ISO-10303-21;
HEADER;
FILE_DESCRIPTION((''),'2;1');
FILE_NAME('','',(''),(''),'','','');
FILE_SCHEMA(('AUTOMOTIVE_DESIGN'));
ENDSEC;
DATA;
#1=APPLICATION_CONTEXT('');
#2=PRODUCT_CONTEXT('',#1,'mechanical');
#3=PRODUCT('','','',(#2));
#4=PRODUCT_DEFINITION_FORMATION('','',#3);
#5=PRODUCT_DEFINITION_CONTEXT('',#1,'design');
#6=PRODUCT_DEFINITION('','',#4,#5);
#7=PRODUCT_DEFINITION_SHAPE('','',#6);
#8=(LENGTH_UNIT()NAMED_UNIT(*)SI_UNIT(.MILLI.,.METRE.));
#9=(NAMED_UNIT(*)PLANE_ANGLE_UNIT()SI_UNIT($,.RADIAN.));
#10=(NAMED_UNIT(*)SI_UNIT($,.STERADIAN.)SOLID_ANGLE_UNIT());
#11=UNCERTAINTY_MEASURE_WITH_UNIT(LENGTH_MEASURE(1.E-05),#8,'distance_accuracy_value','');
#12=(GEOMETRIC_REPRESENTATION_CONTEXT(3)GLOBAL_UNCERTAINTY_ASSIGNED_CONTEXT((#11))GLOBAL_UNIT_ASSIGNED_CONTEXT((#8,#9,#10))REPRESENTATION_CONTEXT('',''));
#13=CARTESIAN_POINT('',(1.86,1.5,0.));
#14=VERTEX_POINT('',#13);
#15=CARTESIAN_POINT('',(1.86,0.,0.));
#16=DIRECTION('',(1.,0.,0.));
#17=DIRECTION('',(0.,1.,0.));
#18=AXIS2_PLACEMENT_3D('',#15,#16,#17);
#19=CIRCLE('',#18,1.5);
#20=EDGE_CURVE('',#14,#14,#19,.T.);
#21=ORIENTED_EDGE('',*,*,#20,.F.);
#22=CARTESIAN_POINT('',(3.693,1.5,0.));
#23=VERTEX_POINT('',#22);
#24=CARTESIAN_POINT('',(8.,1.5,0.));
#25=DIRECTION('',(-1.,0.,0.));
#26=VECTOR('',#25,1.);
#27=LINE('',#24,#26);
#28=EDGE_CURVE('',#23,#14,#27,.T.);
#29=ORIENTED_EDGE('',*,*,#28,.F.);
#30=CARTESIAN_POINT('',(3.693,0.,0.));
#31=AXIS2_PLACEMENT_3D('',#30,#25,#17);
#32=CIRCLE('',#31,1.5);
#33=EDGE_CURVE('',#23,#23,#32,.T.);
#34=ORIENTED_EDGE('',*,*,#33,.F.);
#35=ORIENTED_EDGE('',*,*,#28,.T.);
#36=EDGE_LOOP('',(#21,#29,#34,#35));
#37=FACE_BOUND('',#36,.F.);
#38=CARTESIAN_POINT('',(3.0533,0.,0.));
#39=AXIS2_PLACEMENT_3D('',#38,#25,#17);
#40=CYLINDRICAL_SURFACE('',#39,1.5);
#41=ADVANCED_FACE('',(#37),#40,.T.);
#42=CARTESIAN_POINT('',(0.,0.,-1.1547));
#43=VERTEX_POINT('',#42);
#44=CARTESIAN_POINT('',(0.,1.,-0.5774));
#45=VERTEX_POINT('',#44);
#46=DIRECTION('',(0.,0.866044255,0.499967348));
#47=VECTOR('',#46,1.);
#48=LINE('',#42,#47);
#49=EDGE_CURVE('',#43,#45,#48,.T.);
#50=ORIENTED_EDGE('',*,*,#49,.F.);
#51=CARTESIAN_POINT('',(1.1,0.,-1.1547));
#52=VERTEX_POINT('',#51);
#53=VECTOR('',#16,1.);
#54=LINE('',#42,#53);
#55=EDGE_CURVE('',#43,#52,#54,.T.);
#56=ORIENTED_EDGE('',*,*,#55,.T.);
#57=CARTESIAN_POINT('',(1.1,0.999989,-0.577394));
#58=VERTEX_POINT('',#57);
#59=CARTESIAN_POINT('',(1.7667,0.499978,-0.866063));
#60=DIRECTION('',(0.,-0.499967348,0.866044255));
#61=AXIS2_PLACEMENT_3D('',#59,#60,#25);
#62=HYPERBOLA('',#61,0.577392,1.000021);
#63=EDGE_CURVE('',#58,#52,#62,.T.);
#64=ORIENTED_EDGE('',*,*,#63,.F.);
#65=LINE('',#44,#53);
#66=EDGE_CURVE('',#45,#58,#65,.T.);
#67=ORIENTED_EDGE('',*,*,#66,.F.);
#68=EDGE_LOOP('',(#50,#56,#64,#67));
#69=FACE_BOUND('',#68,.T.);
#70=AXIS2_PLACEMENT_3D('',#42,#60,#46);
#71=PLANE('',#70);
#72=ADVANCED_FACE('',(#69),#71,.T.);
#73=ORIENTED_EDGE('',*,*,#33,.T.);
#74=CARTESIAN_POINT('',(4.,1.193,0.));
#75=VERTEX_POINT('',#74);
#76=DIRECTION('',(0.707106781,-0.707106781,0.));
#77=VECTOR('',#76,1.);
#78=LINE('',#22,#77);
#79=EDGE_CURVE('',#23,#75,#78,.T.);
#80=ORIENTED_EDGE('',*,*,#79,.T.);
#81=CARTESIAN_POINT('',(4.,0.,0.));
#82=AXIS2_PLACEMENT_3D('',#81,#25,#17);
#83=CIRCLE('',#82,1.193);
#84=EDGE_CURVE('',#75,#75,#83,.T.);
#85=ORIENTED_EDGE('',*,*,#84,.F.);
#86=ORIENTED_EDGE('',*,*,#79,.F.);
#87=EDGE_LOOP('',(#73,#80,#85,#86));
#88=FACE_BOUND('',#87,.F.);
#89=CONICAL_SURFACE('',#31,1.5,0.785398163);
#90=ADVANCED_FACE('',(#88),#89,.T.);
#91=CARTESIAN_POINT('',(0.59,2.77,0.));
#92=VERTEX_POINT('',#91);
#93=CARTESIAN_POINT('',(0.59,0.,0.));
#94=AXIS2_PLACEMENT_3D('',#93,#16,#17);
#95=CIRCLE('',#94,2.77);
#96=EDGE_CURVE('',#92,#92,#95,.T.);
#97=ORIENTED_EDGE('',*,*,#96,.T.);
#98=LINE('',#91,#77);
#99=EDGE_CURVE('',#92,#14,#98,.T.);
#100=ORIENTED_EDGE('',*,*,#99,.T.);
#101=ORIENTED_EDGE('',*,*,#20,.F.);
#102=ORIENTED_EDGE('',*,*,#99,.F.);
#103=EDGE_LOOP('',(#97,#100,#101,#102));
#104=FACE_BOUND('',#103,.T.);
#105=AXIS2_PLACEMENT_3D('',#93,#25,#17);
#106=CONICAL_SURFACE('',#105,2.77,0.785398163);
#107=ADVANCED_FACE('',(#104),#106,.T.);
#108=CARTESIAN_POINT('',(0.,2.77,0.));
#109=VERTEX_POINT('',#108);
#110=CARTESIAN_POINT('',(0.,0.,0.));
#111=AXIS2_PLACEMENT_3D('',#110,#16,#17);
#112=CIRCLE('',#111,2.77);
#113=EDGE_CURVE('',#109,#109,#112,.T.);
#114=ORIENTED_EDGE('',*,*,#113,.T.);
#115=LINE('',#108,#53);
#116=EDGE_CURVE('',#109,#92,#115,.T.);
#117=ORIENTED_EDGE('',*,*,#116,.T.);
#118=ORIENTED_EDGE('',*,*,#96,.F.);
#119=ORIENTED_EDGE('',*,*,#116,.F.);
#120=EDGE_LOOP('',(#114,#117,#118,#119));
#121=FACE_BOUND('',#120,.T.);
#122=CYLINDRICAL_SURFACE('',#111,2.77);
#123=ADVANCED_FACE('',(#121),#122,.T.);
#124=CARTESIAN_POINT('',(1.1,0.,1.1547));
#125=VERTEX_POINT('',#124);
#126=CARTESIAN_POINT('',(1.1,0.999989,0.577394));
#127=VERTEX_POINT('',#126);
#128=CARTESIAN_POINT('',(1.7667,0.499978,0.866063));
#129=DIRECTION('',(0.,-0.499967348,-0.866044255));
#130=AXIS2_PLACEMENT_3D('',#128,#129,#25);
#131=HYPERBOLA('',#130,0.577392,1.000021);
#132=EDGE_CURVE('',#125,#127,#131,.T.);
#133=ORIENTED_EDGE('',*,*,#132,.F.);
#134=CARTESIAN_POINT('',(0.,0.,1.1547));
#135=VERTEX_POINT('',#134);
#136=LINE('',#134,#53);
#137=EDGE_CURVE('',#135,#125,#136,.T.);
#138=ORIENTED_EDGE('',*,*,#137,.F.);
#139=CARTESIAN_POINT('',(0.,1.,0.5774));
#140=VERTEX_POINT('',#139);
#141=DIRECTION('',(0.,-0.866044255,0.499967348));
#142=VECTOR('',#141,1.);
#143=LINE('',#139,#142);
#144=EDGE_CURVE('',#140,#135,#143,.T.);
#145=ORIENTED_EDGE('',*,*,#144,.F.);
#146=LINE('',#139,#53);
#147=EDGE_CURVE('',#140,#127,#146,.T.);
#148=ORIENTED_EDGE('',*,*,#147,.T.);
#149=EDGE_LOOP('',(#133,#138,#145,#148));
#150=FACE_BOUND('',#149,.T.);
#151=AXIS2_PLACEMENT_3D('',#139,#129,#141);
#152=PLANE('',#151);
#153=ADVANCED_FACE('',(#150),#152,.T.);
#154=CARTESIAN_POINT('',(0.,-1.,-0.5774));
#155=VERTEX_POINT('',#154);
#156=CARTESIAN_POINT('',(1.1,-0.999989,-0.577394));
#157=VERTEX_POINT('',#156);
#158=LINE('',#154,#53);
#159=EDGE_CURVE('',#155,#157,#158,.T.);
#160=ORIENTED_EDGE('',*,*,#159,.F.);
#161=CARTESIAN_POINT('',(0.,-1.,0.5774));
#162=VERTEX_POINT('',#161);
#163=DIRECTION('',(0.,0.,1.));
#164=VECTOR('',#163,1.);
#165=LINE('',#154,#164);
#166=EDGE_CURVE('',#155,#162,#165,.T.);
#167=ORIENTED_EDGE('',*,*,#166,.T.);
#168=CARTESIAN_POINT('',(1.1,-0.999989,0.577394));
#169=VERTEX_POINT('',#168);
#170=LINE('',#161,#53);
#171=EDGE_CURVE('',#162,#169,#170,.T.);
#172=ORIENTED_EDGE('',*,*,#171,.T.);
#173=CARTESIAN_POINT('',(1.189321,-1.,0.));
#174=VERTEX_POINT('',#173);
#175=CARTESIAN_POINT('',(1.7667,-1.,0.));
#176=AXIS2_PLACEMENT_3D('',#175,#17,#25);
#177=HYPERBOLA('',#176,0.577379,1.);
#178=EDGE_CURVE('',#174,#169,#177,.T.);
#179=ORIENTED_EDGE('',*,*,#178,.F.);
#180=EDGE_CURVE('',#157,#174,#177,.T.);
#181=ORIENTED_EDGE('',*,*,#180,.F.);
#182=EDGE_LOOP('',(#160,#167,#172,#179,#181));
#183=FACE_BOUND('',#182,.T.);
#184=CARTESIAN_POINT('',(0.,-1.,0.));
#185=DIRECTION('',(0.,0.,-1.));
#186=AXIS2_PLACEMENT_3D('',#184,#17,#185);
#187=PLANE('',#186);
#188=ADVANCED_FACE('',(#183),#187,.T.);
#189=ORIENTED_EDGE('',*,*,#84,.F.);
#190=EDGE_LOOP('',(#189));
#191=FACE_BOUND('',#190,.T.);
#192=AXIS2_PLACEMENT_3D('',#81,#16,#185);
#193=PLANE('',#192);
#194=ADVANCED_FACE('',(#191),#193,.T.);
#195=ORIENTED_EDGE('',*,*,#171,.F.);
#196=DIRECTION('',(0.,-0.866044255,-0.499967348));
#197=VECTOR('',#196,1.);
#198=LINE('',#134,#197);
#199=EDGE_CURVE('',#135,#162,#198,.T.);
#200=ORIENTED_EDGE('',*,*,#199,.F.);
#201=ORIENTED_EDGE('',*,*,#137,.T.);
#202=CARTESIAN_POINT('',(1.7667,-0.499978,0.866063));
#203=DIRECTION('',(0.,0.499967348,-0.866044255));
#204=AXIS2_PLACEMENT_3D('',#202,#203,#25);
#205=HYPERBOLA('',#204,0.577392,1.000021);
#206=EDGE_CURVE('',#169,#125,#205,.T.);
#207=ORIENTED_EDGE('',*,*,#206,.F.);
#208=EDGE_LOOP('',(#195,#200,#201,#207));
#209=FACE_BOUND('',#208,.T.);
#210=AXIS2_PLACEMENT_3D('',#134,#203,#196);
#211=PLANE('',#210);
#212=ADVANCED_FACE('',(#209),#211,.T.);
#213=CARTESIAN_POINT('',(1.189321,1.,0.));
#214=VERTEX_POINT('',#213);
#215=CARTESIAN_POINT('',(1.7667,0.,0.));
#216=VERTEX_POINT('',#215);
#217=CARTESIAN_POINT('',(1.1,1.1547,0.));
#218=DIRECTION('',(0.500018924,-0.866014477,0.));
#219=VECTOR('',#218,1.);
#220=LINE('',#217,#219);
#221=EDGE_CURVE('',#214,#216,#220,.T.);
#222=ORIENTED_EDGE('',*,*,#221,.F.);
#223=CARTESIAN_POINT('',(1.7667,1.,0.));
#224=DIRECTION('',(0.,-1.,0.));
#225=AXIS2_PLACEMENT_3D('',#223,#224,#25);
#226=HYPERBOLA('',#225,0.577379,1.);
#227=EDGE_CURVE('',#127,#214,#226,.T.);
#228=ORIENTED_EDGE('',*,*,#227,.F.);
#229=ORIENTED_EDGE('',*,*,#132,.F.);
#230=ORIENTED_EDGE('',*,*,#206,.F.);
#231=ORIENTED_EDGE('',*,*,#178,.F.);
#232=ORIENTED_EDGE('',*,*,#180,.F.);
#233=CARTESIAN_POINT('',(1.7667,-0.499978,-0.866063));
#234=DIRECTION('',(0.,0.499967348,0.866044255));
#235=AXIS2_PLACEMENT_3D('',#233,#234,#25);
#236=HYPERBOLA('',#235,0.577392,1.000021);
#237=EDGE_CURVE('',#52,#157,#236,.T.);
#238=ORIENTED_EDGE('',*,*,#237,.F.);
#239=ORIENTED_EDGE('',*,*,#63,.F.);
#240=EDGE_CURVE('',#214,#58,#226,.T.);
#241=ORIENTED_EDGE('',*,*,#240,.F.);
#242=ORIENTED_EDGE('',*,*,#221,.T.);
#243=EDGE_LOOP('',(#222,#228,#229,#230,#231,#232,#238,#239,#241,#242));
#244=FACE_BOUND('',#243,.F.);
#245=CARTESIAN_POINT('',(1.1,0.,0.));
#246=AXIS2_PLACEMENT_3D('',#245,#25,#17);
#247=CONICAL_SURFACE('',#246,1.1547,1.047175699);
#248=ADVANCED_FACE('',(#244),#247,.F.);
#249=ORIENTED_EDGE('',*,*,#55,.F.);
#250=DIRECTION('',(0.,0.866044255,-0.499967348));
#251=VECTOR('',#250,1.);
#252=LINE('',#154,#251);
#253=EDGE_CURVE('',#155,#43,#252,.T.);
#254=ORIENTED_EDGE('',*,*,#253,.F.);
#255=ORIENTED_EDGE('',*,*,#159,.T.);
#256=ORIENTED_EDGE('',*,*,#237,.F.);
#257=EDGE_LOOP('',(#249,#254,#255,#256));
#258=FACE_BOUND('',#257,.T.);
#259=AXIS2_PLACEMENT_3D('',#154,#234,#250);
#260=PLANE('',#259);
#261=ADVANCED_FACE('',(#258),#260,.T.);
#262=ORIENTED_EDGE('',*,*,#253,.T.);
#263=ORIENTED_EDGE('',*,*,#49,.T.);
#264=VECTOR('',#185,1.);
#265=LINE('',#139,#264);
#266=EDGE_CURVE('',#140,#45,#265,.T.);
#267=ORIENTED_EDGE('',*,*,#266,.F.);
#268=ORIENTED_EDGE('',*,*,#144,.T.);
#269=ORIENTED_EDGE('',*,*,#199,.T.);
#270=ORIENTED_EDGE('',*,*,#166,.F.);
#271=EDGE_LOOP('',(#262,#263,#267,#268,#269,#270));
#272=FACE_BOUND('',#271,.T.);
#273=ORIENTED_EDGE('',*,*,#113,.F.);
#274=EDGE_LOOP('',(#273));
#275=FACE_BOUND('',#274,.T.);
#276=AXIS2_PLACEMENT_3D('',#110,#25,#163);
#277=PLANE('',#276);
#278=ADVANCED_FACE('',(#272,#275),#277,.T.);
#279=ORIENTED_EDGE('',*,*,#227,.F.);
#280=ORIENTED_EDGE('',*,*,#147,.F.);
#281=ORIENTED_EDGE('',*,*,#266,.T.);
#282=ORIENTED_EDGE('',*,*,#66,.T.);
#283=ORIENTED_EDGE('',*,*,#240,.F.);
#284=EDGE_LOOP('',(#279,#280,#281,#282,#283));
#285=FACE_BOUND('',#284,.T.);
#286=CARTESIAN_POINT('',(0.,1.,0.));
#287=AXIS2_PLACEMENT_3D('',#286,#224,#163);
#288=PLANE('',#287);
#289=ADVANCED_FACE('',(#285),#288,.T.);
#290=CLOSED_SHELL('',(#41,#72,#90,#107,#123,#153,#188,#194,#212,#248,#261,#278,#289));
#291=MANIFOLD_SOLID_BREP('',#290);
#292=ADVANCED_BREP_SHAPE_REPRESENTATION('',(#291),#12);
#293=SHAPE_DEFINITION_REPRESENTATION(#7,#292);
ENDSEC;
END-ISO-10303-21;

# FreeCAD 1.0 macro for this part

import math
import FreeCAD as App
import Part
import Sketcher
Q = App.Units.Quantity


def edges_at(feature, points):
    """Names of the edges that pass closest to the given points."""
    edges = feature.Shape.Edges
    near = lambda p: min(range(len(edges)), key=lambda i: edges[i].distToShape(Part.Vertex(*p))[0])
    return sorted({f"Edge{near(p) + 1}" for p in points})

doc = App.newDocument("Part")
body = doc.addObject("PartDesign::Body", "Body")

# Sketch on XY plane
sketch1 = body.newObject("Sketcher::SketchObject", "Sketch")
sketch1.AttachmentSupport = (doc.getObject("XY_Plane"), [""])
sketch1.MapMode = "FlatFace"
sketch1.addGeometry([
    Part.LineSegment(App.Vector(1.8, 0, 0), App.Vector(8, 0, 0)),  # 0
    Part.LineSegment(App.Vector(8, 0, 0), App.Vector(8, 1.5, 0)),  # 1
    Part.LineSegment(App.Vector(8, 1.5, 0), App.Vector(1.9, 1.5, 0)),  # 2
    Part.LineSegment(App.Vector(1.9, 1.5, 0), App.Vector(0.6, 2.8, 0)),  # 3
    Part.LineSegment(App.Vector(0.6, 2.8, 0), App.Vector(0, 2.8, 0)),  # 4
    Part.LineSegment(App.Vector(0, 2.8, 0), App.Vector(0, 1.2, 0)),  # 5
    Part.LineSegment(App.Vector(0, 1.2, 0), App.Vector(1.1, 1.2, 0)),  # 6
    Part.LineSegment(App.Vector(1.1, 1.2, 0), App.Vector(1.8, 0, 0)),  # 7
], False)
sketch1.addConstraint([
    Sketcher.Constraint("Coincident", 0, 2, 1, 1),
    Sketcher.Constraint("Coincident", 1, 2, 2, 1),
    Sketcher.Constraint("Coincident", 2, 2, 3, 1),
    Sketcher.Constraint("Coincident", 3, 2, 4, 1),
    Sketcher.Constraint("Coincident", 4, 2, 5, 1),
    Sketcher.Constraint("Coincident", 5, 2, 6, 1),
    Sketcher.Constraint("Coincident", 6, 2, 7, 1),
    Sketcher.Constraint("Coincident", 7, 2, 0, 1),
    Sketcher.Constraint("Horizontal", 0),
    Sketcher.Constraint("Vertical", 1),
    Sketcher.Constraint("Horizontal", 2),
    Sketcher.Constraint("Horizontal", 4),
    Sketcher.Constraint("Vertical", 5),
    Sketcher.Constraint("Horizontal", 6),
    Sketcher.Constraint("PointOnObject", 0, 2, -1),
    Sketcher.Constraint("PointOnObject", 4, 2, -2),
    Sketcher.Constraint("DistanceX", 6, 1, 6, 2, Q("1.1 mm")),
    Sketcher.Constraint("DistanceX", -1, 1, 0, 2, Q("8 mm")),
    Sketcher.Constraint("DistanceX", -1, 1, 2, 2, Q("1.86 mm")),
    Sketcher.Constraint("Angle", 3, Q("135 deg")),
    Sketcher.Constraint("DistanceY", 1, 1, 1, 2, Q("1.5 mm")),
    Sketcher.Constraint("DistanceX", 4, 2, 4, 1, Q("0.59 mm")),
    Sketcher.Constraint("DistanceX", 0, 1, 0, 2, Q("6.2333 mm")),
    Sketcher.Constraint("DistanceY", 5, 2, 5, 1, Q("1.6153 mm")),
])
revolution = body.newObject("PartDesign::Revolution", "Revolution")
revolution.Profile = sketch1
revolution.ReferenceAxis = (sketch1, ["H_Axis"])
revolution.Angle = 360

# Sketch on YZ plane
sketch2 = body.newObject("Sketcher::SketchObject", "Sketch001")
sketch2.AttachmentSupport = (doc.getObject("YZ_Plane"), [""])
sketch2.MapMode = "FlatFace"
sketch2.addGeometry([
    Part.LineSegment(App.Vector(1, 0.6, 0), App.Vector(0, 1.2, 0)),  # 0
    Part.ArcOfCircle(Part.Circle(App.Vector(0, 0, 0), App.Vector(0, 0, 1), 1.2), math.radians(30), math.radians(90)),  # 1
    Part.ArcOfCircle(Part.Circle(App.Vector(0, 0, 0), App.Vector(0, 0, 1), 1.2), math.radians(90), math.radians(150)),  # 2
    Part.LineSegment(App.Vector(0, 1.2, 0), App.Vector(-1, 0.6, 0)),  # 3
    Part.ArcOfCircle(Part.Circle(App.Vector(0, 0, 0), App.Vector(0, 0, 1), 1.2), math.radians(-30), math.radians(30)),  # 4
    Part.LineSegment(App.Vector(1, 0.6, 0), App.Vector(1, -0.6, 0)),  # 5
    Part.LineSegment(App.Vector(-1, 0.6, 0), App.Vector(-1, -0.6, 0)),  # 6
    Part.ArcOfCircle(Part.Circle(App.Vector(0, 0, 0), App.Vector(0, 0, 1), 1.2), math.radians(150), math.radians(210)),  # 7
    Part.LineSegment(App.Vector(-1, -0.6, 0), App.Vector(0, -1.2, 0)),  # 8
    Part.ArcOfCircle(Part.Circle(App.Vector(0, 0, 0), App.Vector(0, 0, 1), 1.2), math.radians(-150), math.radians(-90)),  # 9
    Part.ArcOfCircle(Part.Circle(App.Vector(0, 0, 0), App.Vector(0, 0, 1), 1.2), math.radians(-90), math.radians(-30)),  # 10
    Part.LineSegment(App.Vector(0, -1.2, 0), App.Vector(1, -0.6, 0)),  # 11
], False)
sketch2.addConstraint([
    Sketcher.Constraint("Coincident", 0, 1, 1, 1),
    Sketcher.Constraint("Coincident", 1, 2, 0, 2),
    Sketcher.Constraint("Coincident", 2, 1, 3, 1),
    Sketcher.Constraint("Coincident", 3, 2, 2, 2),
    Sketcher.Constraint("Coincident", 4, 1, 5, 2),
    Sketcher.Constraint("Coincident", 5, 1, 4, 2),
    Sketcher.Constraint("Coincident", 6, 1, 7, 1),
    Sketcher.Constraint("Coincident", 7, 2, 6, 2),
    Sketcher.Constraint("Coincident", 8, 1, 9, 1),
    Sketcher.Constraint("Coincident", 9, 2, 8, 2),
    Sketcher.Constraint("Coincident", 10, 1, 11, 1),
    Sketcher.Constraint("Coincident", 11, 2, 10, 2),
    Sketcher.Constraint("Vertical", 5),
    Sketcher.Constraint("Vertical", 6),
    Sketcher.Constraint("Coincident", 1, 3, -1, 1),
    Sketcher.Constraint("Coincident", 2, 3, -1, 1),
    Sketcher.Constraint("Coincident", 4, 3, -1, 1),
    Sketcher.Constraint("Coincident", 7, 3, -1, 1),
    Sketcher.Constraint("Coincident", 9, 3, -1, 1),
    Sketcher.Constraint("Coincident", 10, 3, -1, 1),
    Sketcher.Constraint("Coincident", 2, 1, 1, 2),
    Sketcher.Constraint("Coincident", 5, 1, 0, 1),
    Sketcher.Constraint("Coincident", 6, 1, 3, 2),
    Sketcher.Constraint("Coincident", 8, 1, 7, 2),
    Sketcher.Constraint("Coincident", 10, 1, 9, 2),
    Sketcher.Constraint("PointOnObject", 1, 2, -2),
    Sketcher.Constraint("PointOnObject", 9, 2, -2),
    Sketcher.Constraint("Parallel", 0, 8),
    Sketcher.Constraint("Parallel", 3, 11),
    Sketcher.Constraint("DistanceX", -1, 1, 0, 1, Q("1 mm")),
    Sketcher.Constraint("Radius", 1, Q("1.1547 mm")),
])
pad1 = body.newObject("PartDesign::Pad", "Pad")
pad1.Profile = sketch2
pad1.Type = "UpToFirst"
doc.recompute()

chamfer = body.newObject("PartDesign::Chamfer", "Chamfer")
chamfer.Base = (pad1, edges_at(pad1, [(8, -1.5, 0)]))
chamfer.ChamferType = "Two distances"
chamfer.Size = 0.3067
chamfer.Size2 = 0.3067

# Sketch on YZ plane
sketch3 = body.newObject("Sketcher::SketchObject", "Sketch002")
sketch3.AttachmentSupport = (doc.getObject("YZ_Plane"), [""])
sketch3.MapMode = "FlatFace"
sketch3.AttachmentOffset = App.Placement(App.Vector(0, 0, 8), App.Rotation())
sketch3.addGeometry(Part.Circle(App.Vector(0, 0, 0), App.Vector(0, 0, 1), 1.5), False)
sketch3.addConstraint([
    Sketcher.Constraint("Coincident", 0, 3, -1, 1),
    Sketcher.Constraint("Diameter", 0, Q("3 mm")),
])
pocket1 = body.newObject("PartDesign::Pocket", "Pocket")
pocket1.Profile = sketch3
pocket1.Length = 4
doc.recompute()

chamfer2 = body.newObject("PartDesign::Chamfer", "Chamfer001")
chamfer2.Base = (pocket1, edges_at(pocket1, [(4, -1.5, 0)]))
chamfer2.Size = 0.307

doc.recompute()
